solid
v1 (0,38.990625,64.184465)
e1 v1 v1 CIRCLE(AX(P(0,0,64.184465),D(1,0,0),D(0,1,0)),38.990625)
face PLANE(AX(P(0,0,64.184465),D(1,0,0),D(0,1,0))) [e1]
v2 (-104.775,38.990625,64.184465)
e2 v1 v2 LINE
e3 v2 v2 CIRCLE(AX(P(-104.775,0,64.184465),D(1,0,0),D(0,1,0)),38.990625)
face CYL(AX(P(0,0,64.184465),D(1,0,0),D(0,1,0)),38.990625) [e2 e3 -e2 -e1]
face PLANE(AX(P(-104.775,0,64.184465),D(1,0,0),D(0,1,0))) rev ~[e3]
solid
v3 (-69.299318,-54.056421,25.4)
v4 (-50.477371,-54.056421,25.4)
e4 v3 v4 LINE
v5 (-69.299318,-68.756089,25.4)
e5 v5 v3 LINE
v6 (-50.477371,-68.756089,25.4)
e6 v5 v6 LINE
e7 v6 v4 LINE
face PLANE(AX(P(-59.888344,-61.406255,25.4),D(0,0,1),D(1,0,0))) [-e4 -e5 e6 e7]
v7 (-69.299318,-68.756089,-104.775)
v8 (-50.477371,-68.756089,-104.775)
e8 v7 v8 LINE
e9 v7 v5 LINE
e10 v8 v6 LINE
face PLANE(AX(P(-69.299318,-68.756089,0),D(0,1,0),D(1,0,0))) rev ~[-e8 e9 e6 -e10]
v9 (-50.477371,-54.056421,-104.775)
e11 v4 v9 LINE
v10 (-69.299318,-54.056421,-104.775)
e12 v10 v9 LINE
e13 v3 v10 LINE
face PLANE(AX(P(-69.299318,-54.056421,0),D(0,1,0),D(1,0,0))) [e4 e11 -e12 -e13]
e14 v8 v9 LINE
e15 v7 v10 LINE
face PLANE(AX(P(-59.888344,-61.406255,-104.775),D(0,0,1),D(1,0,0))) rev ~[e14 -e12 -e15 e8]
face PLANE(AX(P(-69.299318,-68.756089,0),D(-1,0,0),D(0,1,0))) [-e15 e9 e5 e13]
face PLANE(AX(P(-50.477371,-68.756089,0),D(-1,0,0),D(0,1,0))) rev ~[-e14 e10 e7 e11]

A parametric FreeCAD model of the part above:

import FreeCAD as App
import Part
import Sketcher
Q = App.Units.Quantity

doc = App.newDocument("Part")
body = doc.addObject("PartDesign::Body", "Body")

# Sketch on XY plane
sketch1 = doc.addObject("Sketcher::SketchObject", "Sketch")
body.addObject(sketch1)
sketch1.AttachmentSupport = (doc.XY_Plane, [""])
sketch1.MapMode = "FlatFace"
sketch1.addGeometry([
    Part.LineSegment(App.Vector(-69, -54, 0), App.Vector(-69, -69, 0)),
    Part.LineSegment(App.Vector(-69, -69, 0), App.Vector(-50, -69, 0)),
    Part.LineSegment(App.Vector(-50, -69, 0), App.Vector(-50, -54, 0)),
    Part.LineSegment(App.Vector(-50, -54, 0), App.Vector(-69, -54, 0)),
], False)
sketch1.addConstraint([
    Sketcher.Constraint("Coincident", 0, 2, 1, 1),
    Sketcher.Constraint("Coincident", 1, 2, 2, 1),
    Sketcher.Constraint("Coincident", 2, 2, 3, 1),
    Sketcher.Constraint("Coincident", 3, 2, 0, 1),
    Sketcher.Constraint("Vertical", 0),
    Sketcher.Constraint("Horizontal", 1),
    Sketcher.Constraint("Vertical", 2),
    Sketcher.Constraint("Horizontal", 3),
    Sketcher.Constraint("DistanceX", 1, 1, 1, 2, 18.821947),
    Sketcher.Constraint("DistanceY", 0, 2, 0, 1, 14.699668),
    Sketcher.Constraint("DistanceY", 0, 2, -1, 1, 68.756089),
    Sketcher.Constraint("DistanceX", 1, 2, -1, 1, 50.477371),
])
pad1 = doc.addObject("PartDesign::Pad", "Pad")
body.addObject(pad1)
pad1.Profile = sketch1
pad1.Type = "TwoLengths"
pad1.Length = Q("4.125 in")
pad1.Length2 = Q("1 in")
pad1.Reversed = True
body2 = doc.addObject("PartDesign::Body", "Body001")

# Sketch on YZ plane
sketch2 = doc.addObject("Sketcher::SketchObject", "Sketch001")
body2.addObject(sketch2)
sketch2.AttachmentSupport = (doc.getObject("YZ_Plane001"), [""])
sketch2.MapMode = "FlatFace"
sketch2.addGeometry(Part.Circle(App.Vector(0, 64, 0), App.Vector(0, 0, 1), 39), False)
sketch2.addConstraint([
    Sketcher.Constraint("PointOnObject", 0, 3, -2),
    Sketcher.Constraint("Diameter", 0, 77.98125),
    Sketcher.Constraint("DistanceY", -1, 1, 0, 3, 64.184465),
])
pad2 = doc.addObject("PartDesign::Pad", "Pad001")
body2.addObject(pad2)
pad2.Profile = sketch2
pad2.Length = Q("4.125 in")
pad2.Reversed = True

doc.recompute()
